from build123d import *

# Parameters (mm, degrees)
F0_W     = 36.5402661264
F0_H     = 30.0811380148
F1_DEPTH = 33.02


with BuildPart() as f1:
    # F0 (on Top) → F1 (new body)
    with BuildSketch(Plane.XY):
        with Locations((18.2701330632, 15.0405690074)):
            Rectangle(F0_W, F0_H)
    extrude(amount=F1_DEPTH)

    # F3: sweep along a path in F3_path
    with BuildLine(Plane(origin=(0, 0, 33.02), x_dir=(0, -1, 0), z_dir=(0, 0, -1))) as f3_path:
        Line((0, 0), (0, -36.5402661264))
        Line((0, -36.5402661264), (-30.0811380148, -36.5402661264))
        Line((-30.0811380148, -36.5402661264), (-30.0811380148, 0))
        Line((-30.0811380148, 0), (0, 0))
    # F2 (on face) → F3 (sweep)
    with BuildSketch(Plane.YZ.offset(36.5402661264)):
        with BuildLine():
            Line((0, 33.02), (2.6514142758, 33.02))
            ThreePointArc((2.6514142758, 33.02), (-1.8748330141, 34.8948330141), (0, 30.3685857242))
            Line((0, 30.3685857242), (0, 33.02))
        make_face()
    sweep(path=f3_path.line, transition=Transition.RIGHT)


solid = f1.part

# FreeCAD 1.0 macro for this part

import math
import FreeCAD as App
import Part
import Sketcher
from FreeCAD import Vector
Q = App.Units.Quantity

doc = App.newDocument("Part")
body = doc.addObject("PartDesign::Body", "Body")

# Sketch on XY plane
sketch1 = body.newObject("Sketcher::SketchObject", "Sketch")
sketch1.AttachmentSupport = (doc.getObject("XY_Plane"), [""])
sketch1.MapMode = "FlatFace"
sketch1.addGeometry([
    Part.LineSegment(Vector(0, 30, 0), Vector(0, 0, 0)),
    Part.LineSegment(Vector(0, 0, 0), Vector(37, 0, 0)),
    Part.LineSegment(Vector(37, 0, 0), Vector(37, 30, 0)),
    Part.LineSegment(Vector(37, 30, 0), Vector(0, 30, 0)),
], False)
sketch1.addConstraint([
    Sketcher.Constraint("Coincident", 0, 2, 1, 1),
    Sketcher.Constraint("Coincident", 1, 2, 2, 1),
    Sketcher.Constraint("Coincident", 2, 2, 3, 1),
    Sketcher.Constraint("Coincident", 3, 2, 0, 1),
    Sketcher.Constraint("Vertical", 0),
    Sketcher.Constraint("Horizontal", 1),
    Sketcher.Constraint("Vertical", 2),
    Sketcher.Constraint("Horizontal", 3),
    Sketcher.Constraint("Coincident", 0, 2, -1, 1),
    Sketcher.Constraint("DistanceY", 0, 2, 0, 1, 30.081138),
    Sketcher.Constraint("DistanceX", 1, 1, 1, 2, 36.540266),
])
pad1 = body.newObject("PartDesign::Pad", "Pad")
pad1.Profile = sketch1
pad1.Length = Q("1.3 in")

# Sketch on YZ plane
sketch2 = body.newObject("Sketcher::SketchObject", "Sketch001")
sketch2.AttachmentSupport = (doc.getObject("YZ_Plane"), [""])
sketch2.MapMode = "FlatFace"
sketch2.AttachmentOffset = App.Placement(Vector(0, 0, 36.540266), App.Rotation())
sketch2.addGeometry([
    Part.LineSegment(Vector(0, 33, 0), Vector(2.7, 33, 0)),
    Part.ArcOfCircle(Part.Circle(Vector(0, 33, 0), Vector(0, 0, 1), 2.7), math.radians(0), math.radians(270)),
    Part.LineSegment(Vector(0, 30.4, 0), Vector(0, 33, 0)),
], False)
sketch2.addConstraint([
    Sketcher.Constraint("Coincident", 0, 2, 1, 1),
    Sketcher.Constraint("Coincident", 1, 2, 2, 1),
    Sketcher.Constraint("Coincident", 2, 2, 0, 1),
    Sketcher.Constraint("Horizontal", 0),
    Sketcher.Constraint("Vertical", 2),
    Sketcher.Constraint("Coincident", 2, 2, 1, 3),
    Sketcher.Constraint("PointOnObject", 1, 3, -2),
    Sketcher.Constraint("DistanceY", -1, 1, 1, 3, Q("1.3 in")),
    Sketcher.Constraint("Radius", 1, 2.651414),
])

# Sketch on XY plane
sketch3 = body.newObject("Sketcher::SketchObject", "Sketch002")
sketch3.AttachmentSupport = (doc.getObject("XY_Plane"), [""])
sketch3.MapMode = "FlatFace"
sketch3.AttachmentOffset = App.Placement(Vector(0, 0, 1.3 * 25.4), App.Rotation())
sketch3.addGeometry([
    Part.LineSegment(Vector(0, 0, 0), Vector(37, 0, 0)),
    Part.LineSegment(Vector(37, 0, 0), Vector(37, 30, 0)),
    Part.LineSegment(Vector(37, 30, 0), Vector(0, 30, 0)),
    Part.LineSegment(Vector(0, 30, 0), Vector(0, 0, 0)),
], False)
sketch3.addConstraint([
    Sketcher.Constraint("Coincident", 0, 2, 1, 1),
    Sketcher.Constraint("Coincident", 1, 2, 2, 1),
    Sketcher.Constraint("Coincident", 2, 2, 3, 1),
    Sketcher.Constraint("Coincident", 3, 2, 0, 1),
    Sketcher.Constraint("Horizontal", 0),
    Sketcher.Constraint("Vertical", 1),
    Sketcher.Constraint("Horizontal", 2),
    Sketcher.Constraint("Vertical", 3),
    Sketcher.Constraint("Coincident", 3, 2, -1, 1),
    Sketcher.Constraint("DistanceY", 1, 1, 1, 2, 30.081138),
    Sketcher.Constraint("DistanceX", 0, 1, 0, 2, 36.540266),
])
doc.recompute()

additivepipe = body.newObject("PartDesign::AdditivePipe", "AdditivePipe")
additivepipe.Profile = sketch2
additivepipe.Spine = (sketch3, ["Edge1", "Edge2", "Edge3", "Edge4"])
additivepipe.Transition = "Right corner"

doc.recompute()
